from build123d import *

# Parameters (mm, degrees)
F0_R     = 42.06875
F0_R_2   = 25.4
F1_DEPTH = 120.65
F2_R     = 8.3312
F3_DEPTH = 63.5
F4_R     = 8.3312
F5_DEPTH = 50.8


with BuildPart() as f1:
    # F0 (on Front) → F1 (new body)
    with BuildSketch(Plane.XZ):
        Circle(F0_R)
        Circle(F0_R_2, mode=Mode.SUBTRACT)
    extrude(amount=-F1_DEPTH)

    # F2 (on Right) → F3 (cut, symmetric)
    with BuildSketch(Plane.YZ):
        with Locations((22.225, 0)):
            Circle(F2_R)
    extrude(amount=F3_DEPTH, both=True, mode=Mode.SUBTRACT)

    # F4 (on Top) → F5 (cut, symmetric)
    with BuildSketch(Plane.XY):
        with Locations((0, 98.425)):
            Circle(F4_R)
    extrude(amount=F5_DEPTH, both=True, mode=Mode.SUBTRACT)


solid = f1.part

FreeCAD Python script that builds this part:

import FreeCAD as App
import Part
import Sketcher
Q = App.Units.Quantity

doc = App.newDocument("Part")
params = doc.addObject("Spreadsheet::Sheet", "Params")
for row, (alias, value) in enumerate([
    ("sketch1_diameter", "2 in"),
    ("sketch1_diameter2", "3.3125 in"),
    ("pad1_length", "4.75 in"),
    ("sketch2_diameter", "0.656 in"),
    ("pocket1_length", "5 in"),
    ("sketch3_diameter", "0.656 in"),
    ("pocket2_length", "4 in"),
], start=1):
    params.set(f"A{row}", alias)
    params.set(f"B{row}", "=" + value)
    params.setAlias(f"B{row}", alias)

body = doc.addObject("PartDesign::Body", "Body")

sketch1 = body.newObject("Sketcher::SketchObject", "Sketch")
sketch1.AttachmentSupport = (doc.getObject("XZ_Plane"), [""])
sketch1.MapMode = "FlatFace"
sketch1.addGeometry(Part.Circle(App.Vector(0, 0, 0), App.Vector(0, 0, 1), 42), False)
sketch1.addGeometry(Part.Circle(App.Vector(0, 0, 0), App.Vector(0, 0, 1), 25), False)
sketch1.addConstraint(Sketcher.Constraint("Coincident", 0, 3, -1, 1))
sketch1.addConstraint(Sketcher.Constraint("Coincident", 1, 3, -1, 1))
sketch1.addConstraint(Sketcher.Constraint("Diameter", 1, Q("2 in")))
sketch1.addConstraint(Sketcher.Constraint("Diameter", 0, Q("3.3125 in")))
sketch1.setExpression("Constraints[2]", "Params.sketch1_diameter")
sketch1.setExpression("Constraints[3]", "Params.sketch1_diameter2")
pad1 = body.newObject("PartDesign::Pad", "Pad")
pad1.Profile = sketch1
pad1.setExpression("Length", "Params.pad1_length")
pad1.Reversed = True

sketch2 = body.newObject("Sketcher::SketchObject", "Sketch001")
sketch2.AttachmentSupport = (doc.getObject("YZ_Plane"), [""])
sketch2.MapMode = "FlatFace"
sketch2.addGeometry(Part.Circle(App.Vector(22, 0, 0), App.Vector(0, 0, 1), 8), False)
sketch2.addConstraint(Sketcher.Constraint("PointOnObject", 0, 3, -1))
sketch2.addConstraint(Sketcher.Constraint("Diameter", 0, Q("0.656 in")))
sketch2.addConstraint(Sketcher.Constraint("DistanceX", -1, 1, 0, 3, Q("0.875 in")))
sketch2.setExpression("Constraints[1]", "Params.sketch2_diameter")
pocket1 = body.newObject("PartDesign::Pocket", "Pocket")
pocket1.Profile = sketch2
pocket1.setExpression("Length", "Params.pocket1_length")
pocket1.Midplane = True

sketch3 = body.newObject("Sketcher::SketchObject", "Sketch002")
sketch3.AttachmentSupport = (doc.getObject("XY_Plane"), [""])
sketch3.MapMode = "FlatFace"
sketch3.addGeometry(Part.Circle(App.Vector(0, 98, 0), App.Vector(0, 0, 1), 8), False)
sketch3.addConstraint(Sketcher.Constraint("PointOnObject", 0, 3, -2))
sketch3.addConstraint(Sketcher.Constraint("Diameter", 0, Q("0.656 in")))
sketch3.addConstraint(Sketcher.Constraint("DistanceY", -1, 1, 0, 3, Q("3.875 in")))
sketch3.setExpression("Constraints[1]", "Params.sketch3_diameter")
pocket2 = body.newObject("PartDesign::Pocket", "Pocket001")
pocket2.Profile = sketch3
pocket2.setExpression("Length", "Params.pocket2_length")
pocket2.Midplane = True

doc.recompute()
